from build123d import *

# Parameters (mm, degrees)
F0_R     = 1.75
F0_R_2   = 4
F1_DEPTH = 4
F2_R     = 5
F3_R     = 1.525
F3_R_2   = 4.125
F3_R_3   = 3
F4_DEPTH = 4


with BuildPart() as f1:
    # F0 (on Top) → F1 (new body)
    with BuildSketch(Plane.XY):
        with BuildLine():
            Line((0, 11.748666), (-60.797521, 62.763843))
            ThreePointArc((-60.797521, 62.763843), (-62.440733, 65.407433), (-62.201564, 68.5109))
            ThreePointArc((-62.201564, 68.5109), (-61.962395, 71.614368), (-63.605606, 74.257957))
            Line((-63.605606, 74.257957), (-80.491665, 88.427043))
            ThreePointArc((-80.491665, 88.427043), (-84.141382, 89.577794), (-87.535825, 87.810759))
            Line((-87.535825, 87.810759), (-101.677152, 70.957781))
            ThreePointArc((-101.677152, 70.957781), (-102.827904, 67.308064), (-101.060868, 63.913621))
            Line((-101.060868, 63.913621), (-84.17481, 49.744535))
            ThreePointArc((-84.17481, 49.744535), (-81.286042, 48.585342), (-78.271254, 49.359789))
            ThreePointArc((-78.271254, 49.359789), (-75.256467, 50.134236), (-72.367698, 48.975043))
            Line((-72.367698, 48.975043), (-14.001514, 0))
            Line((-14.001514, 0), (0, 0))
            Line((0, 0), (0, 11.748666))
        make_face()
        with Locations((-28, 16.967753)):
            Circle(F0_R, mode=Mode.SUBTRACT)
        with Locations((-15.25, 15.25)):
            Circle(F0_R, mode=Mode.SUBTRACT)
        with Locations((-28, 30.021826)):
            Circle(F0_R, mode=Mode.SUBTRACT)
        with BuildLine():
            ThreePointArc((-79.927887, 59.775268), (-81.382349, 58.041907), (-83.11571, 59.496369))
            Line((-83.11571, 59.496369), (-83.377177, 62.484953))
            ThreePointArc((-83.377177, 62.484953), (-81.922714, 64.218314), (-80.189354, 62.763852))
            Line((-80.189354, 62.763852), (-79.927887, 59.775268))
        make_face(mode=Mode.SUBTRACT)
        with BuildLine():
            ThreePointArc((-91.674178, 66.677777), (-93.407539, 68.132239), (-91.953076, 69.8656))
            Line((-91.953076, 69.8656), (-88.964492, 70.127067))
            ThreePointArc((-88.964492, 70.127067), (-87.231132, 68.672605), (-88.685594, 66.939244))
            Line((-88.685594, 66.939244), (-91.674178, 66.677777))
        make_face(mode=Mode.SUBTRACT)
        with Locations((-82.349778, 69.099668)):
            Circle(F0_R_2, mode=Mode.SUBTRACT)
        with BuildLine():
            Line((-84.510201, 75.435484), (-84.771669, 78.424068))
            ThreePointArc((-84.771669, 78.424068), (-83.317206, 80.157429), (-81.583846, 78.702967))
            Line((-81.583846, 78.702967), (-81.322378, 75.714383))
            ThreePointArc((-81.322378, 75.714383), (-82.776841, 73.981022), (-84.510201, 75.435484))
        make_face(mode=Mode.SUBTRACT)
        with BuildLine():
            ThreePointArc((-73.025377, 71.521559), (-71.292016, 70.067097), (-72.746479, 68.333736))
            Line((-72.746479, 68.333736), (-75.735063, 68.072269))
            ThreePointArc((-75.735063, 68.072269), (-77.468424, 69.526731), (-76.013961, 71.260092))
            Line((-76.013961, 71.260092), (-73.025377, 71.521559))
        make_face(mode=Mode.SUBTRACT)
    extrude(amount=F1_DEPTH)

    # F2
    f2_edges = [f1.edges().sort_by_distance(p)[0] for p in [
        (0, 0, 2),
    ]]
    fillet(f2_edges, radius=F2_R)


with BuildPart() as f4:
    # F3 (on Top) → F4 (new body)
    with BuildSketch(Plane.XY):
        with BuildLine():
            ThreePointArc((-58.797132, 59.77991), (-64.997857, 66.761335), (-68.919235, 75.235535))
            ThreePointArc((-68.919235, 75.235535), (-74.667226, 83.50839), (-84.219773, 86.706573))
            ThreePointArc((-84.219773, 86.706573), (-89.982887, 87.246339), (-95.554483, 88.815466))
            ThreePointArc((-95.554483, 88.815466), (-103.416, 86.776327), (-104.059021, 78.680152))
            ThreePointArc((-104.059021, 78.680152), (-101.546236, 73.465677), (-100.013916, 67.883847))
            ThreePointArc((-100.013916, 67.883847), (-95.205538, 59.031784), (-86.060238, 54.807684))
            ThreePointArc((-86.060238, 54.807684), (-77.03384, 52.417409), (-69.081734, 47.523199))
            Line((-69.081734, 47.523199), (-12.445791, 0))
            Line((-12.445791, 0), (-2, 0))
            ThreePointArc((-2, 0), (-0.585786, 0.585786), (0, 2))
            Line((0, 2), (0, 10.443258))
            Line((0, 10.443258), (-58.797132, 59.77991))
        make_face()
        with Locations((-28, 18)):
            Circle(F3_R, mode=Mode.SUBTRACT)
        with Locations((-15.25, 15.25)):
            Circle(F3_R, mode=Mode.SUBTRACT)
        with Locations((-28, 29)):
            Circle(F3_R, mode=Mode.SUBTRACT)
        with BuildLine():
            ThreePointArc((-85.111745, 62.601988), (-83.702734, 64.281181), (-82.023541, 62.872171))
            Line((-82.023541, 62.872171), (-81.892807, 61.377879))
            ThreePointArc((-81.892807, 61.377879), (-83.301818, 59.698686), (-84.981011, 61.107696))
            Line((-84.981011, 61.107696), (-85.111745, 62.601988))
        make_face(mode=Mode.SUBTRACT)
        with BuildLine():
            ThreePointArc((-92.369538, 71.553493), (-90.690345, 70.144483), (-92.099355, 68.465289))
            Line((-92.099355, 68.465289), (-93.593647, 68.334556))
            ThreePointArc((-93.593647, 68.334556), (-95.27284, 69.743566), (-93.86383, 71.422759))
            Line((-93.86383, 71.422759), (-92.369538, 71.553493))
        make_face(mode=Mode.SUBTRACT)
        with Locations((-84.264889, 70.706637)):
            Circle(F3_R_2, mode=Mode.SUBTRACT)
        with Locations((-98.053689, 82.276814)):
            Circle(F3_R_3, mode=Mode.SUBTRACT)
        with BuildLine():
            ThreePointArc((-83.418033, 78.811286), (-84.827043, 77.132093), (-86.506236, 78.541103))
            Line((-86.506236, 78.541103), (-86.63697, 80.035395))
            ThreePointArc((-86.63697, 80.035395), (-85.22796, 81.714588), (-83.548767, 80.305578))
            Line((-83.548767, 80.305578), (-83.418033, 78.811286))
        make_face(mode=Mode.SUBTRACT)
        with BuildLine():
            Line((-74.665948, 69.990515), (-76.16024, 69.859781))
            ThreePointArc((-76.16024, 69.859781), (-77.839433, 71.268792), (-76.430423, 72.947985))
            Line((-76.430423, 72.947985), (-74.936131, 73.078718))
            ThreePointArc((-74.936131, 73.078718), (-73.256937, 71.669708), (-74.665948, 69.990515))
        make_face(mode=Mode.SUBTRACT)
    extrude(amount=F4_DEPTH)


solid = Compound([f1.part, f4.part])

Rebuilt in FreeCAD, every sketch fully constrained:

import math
import FreeCAD as App
import Part
import Sketcher
from FreeCAD import Vector
Q = App.Units.Quantity


def edges_at(feature, points):
    """Names of the edges that pass closest to the given points."""
    edges = feature.Shape.Edges
    near = lambda p: min(range(len(edges)), key=lambda i: edges[i].distToShape(Part.Vertex(*p))[0])
    return sorted({f"Edge{near(p) + 1}" for p in points})

doc = App.newDocument("Part")
body = doc.addObject("PartDesign::Body", "Body")

sketch1 = doc.addObject("Sketcher::SketchObject", "Sketch")
body.addObject(sketch1)
sketch1.AttachmentSupport = (doc.XY_Plane, [""])
sketch1.MapMode = "FlatFace"
sketch1.addGeometry([
    Part.LineSegment(Vector(0, 11.7, 0), Vector(-60.8, 62.8, 0)),
    Part.ArcOfCircle(Part.Circle(Vector(-57.6, 66.6, 0), Vector(0, 0, 1), 5), math.radians(157), math.radians(230)),
    Part.ArcOfCircle(Part.Circle(Vector(-66.8, 70.4, 0), Vector(0, 0, 1), 5), math.radians(-23), math.radians(50)),
    Part.LineSegment(Vector(-63.6, 74.3, 0), Vector(-80.5, 88.4, 0)),
    Part.ArcOfCircle(Part.Circle(Vector(-83.7, 84.6, 0), Vector(0, 0, 1), 5), math.radians(50), math.radians(140)),
    Part.LineSegment(Vector(-87.5, 87.8, 0), Vector(-101.7, 71, 0)),
    Part.ArcOfCircle(Part.Circle(Vector(-97.8, 67.7, 0), Vector(0, 0, 1), 5), math.radians(140), math.radians(230)),
    Part.LineSegment(Vector(-101.1, 63.9, 0), Vector(-84.2, 49.7, 0)),
    Part.ArcOfCircle(Part.Circle(Vector(-81, 53.6, 0), Vector(0, 0, 1), 5), math.radians(-130), math.radians(-57)),
    Part.ArcOfCircle(Part.Circle(Vector(-75.6, 45.1, 0), Vector(0, 0, 1), 5), math.radians(50), math.radians(123)),
    Part.LineSegment(Vector(-72.4, 49, 0), Vector(-14, 0, 0)),
    Part.LineSegment(Vector(-14, 0, 0), Vector(0, 0, 0)),
    Part.LineSegment(Vector(0, 0, 0), Vector(0, 11.7, 0)),
    Part.Circle(Vector(-28, 17, 0), Vector(0, 0, 1), 1.8),
    Part.Circle(Vector(-15.2, 15.2, 0), Vector(0, 0, 1), 1.8),
    Part.Circle(Vector(-28, 30, 0), Vector(0, 0, 1), 1.8),
    Part.LineSegment(Vector(-80.2, 62.8, 0), Vector(-79.9, 59.8, 0)),
    Part.ArcOfCircle(Part.Circle(Vector(-81.5, 59.6, 0), Vector(0, 0, 1), 1.6), math.radians(-175), math.radians(5)),
    Part.LineSegment(Vector(-83.1, 59.5, 0), Vector(-83.4, 62.5, 0)),
    Part.ArcOfCircle(Part.Circle(Vector(-81.8, 62.6, 0), Vector(0, 0, 1), 1.6), math.radians(5), math.radians(185)),
    Part.LineSegment(Vector(-88.7, 66.9, 0), Vector(-91.7, 66.7, 0)),
    Part.ArcOfCircle(Part.Circle(Vector(-91.8, 68.3, 0), Vector(0, 0, 1), 1.6), math.radians(95), math.radians(275)),
    Part.LineSegment(Vector(-92, 69.9, 0), Vector(-89, 70.1, 0)),
    Part.ArcOfCircle(Part.Circle(Vector(-88.8, 68.5, 0), Vector(0, 0, 1), 1.6), math.radians(-85), math.radians(95)),
    Part.Circle(Vector(-82.3, 69.1, 0), Vector(0, 0, 1), 4),
    Part.LineSegment(Vector(-76, 71.3, 0), Vector(-73, 71.5, 0)),
    Part.ArcOfCircle(Part.Circle(Vector(-72.9, 69.9, 0), Vector(0, 0, 1), 1.6), math.radians(-85), math.radians(95)),
    Part.LineSegment(Vector(-72.7, 68.3, 0), Vector(-75.7, 68.1, 0)),
    Part.ArcOfCircle(Part.Circle(Vector(-75.9, 69.7, 0), Vector(0, 0, 1), 1.6), math.radians(95), math.radians(275)),
    Part.ArcOfCircle(Part.Circle(Vector(-82.9, 75.6, 0), Vector(0, 0, 1), 1.6), math.radians(-175), math.radians(5)),
    Part.LineSegment(Vector(-84.5, 75.4, 0), Vector(-84.8, 78.4, 0)),
    Part.ArcOfCircle(Part.Circle(Vector(-83.2, 78.6, 0), Vector(0, 0, 1), 1.6), math.radians(5), math.radians(185)),
    Part.LineSegment(Vector(-81.6, 78.7, 0), Vector(-81.3, 75.7, 0)),
], False)
sketch1.addConstraint([
    Sketcher.Constraint("Tangent", 0, 2, 1, 2),
    Sketcher.Constraint("Tangent", 1, 1, 2, 1),
    Sketcher.Constraint("Tangent", 2, 2, 3, 1),
    Sketcher.Constraint("Tangent", 3, 2, 4, 1),
    Sketcher.Constraint("Tangent", 4, 2, 5, 1),
    Sketcher.Constraint("Tangent", 5, 2, 6, 1),
    Sketcher.Constraint("Tangent", 6, 2, 7, 1),
    Sketcher.Constraint("Tangent", 7, 2, 8, 1),
    Sketcher.Constraint("Tangent", 8, 2, 9, 2),
    Sketcher.Constraint("Tangent", 9, 1, 10, 1),
    Sketcher.Constraint("Coincident", 10, 2, 11, 1),
    Sketcher.Constraint("Coincident", 11, 2, 12, 1),
    Sketcher.Constraint("Coincident", 12, 2, 0, 1),
    Sketcher.Constraint("Tangent", 16, 2, 17, 2),
    Sketcher.Constraint("Tangent", 17, 1, 18, 1),
    Sketcher.Constraint("Tangent", 18, 2, 19, 2),
    Sketcher.Constraint("Tangent", 19, 1, 16, 1),
    Sketcher.Constraint("Tangent", 20, 2, 21, 2),
    Sketcher.Constraint("Tangent", 21, 1, 22, 1),
    Sketcher.Constraint("Tangent", 22, 2, 23, 2),
    Sketcher.Constraint("Tangent", 23, 1, 20, 1),
    Sketcher.Constraint("Tangent", 25, 2, 26, 2),
    Sketcher.Constraint("Tangent", 26, 1, 27, 1),
    Sketcher.Constraint("Tangent", 27, 2, 28, 2),
    Sketcher.Constraint("Tangent", 28, 1, 25, 1),
    Sketcher.Constraint("Tangent", 29, 1, 30, 1),
    Sketcher.Constraint("Tangent", 30, 2, 31, 2),
    Sketcher.Constraint("Tangent", 31, 1, 32, 1),
    Sketcher.Constraint("Tangent", 32, 2, 29, 2),
    Sketcher.Constraint("Horizontal", 11),
    Sketcher.Constraint("Vertical", 12),
    Sketcher.Constraint("Coincident", 11, 2, -1, 1),
    Sketcher.Constraint("Equal", 1, 2),
    Sketcher.Constraint("Equal", 2, 4),
    Sketcher.Constraint("Equal", 4, 8),
    Sketcher.Constraint("Equal", 8, 9),
    Sketcher.Constraint("Equal", 13, 14),
    Sketcher.Constraint("Equal", 14, 15),
    Sketcher.Constraint("Equal", 17, 19),
    Sketcher.Constraint("Equal", 19, 21),
    Sketcher.Constraint("Equal", 21, 23),
    Sketcher.Constraint("Equal", 23, 26),
    Sketcher.Constraint("Equal", 26, 28),
    Sketcher.Constraint("Equal", 28, 29),
    Sketcher.Constraint("Equal", 29, 31),
    Sketcher.Constraint("Parallel", 0, 3),
    Sketcher.Constraint("Perpendicular", 3, 5),
    Sketcher.Constraint("Perpendicular", 5, 7),
    Sketcher.Constraint("Parallel", 7, 10),
    Sketcher.Constraint("Perpendicular", 18, 20),
    Sketcher.Constraint("Parallel", 22, 25),
    Sketcher.Constraint("Perpendicular", 27, 30),
    Sketcher.Constraint("Vertical", 13, 3, 15, 3),
    Sketcher.Constraint("Equal", 3, 7),
    Sketcher.Constraint("Equal", 18, 20),
    Sketcher.Constraint("Equal", 22, 25),
    Sketcher.Constraint("Equal", 27, 30),
    Sketcher.Constraint("Diameter", 24, 8.0),
    Sketcher.Constraint("Radius", 1, 5.0),
    Sketcher.Constraint("Radius", 6, 4.999998),
    Sketcher.Constraint("Diameter", 13, 3.5),
    Sketcher.Constraint("Radius", 17, 1.6),
    Sketcher.Constraint("Angle", 0, Q("140 deg")),
    Sketcher.Constraint("Angle", 16, Q("-85.000004 deg")),
    Sketcher.Constraint("Distance", 5, 22.0),
    Sketcher.Constraint("Distance", 16, 3.0),
    Sketcher.Constraint("DistanceX", 13, 3, -1, 1, 28.0),
    Sketcher.Constraint("DistanceX", 14, 3, -1, 1, 15.25),
    Sketcher.Constraint("DistanceY", -1, 1, 14, 3, 15.25),
    Sketcher.Constraint("DistanceY", 9, 3, 4, 3, 39.452),
    Sketcher.Constraint("DistanceY", 9, 3, 17, 3, 14.490999),
    Sketcher.Constraint("DistanceX", 20, 2, 18, 2, 8.297001),
    Sketcher.Constraint("DistanceY", 26, 1, 2, 3, 2.093999),
    Sketcher.Constraint("DistanceY", 22, 2, 30, 2, 8.297001),
    Sketcher.Constraint("DistanceX", 17, 3, -1, 1, 81.521799),
    Sketcher.Constraint("DistanceY", -1, 1, 1, 1, 68.5109),
    Sketcher.Constraint("DistanceX", 9, 1, -1, 1, 72.367698),
    Sketcher.Constraint("DistanceY", -1, 1, 21, 1, 69.8656),
    Sketcher.Constraint("DistanceX", 29, 1, -1, 1, 84.510201),
    Sketcher.Constraint("DistanceY", 16, 2, 24, 3, 9.3244),
    Sketcher.Constraint("DistanceX", 18, 2, 24, 3, 1.027399),
    Sketcher.Constraint("DistanceY", 24, 3, 22, 2, 1.027399),
    Sketcher.Constraint("DistanceX", 24, 3, 25, 2, 9.324401),
    Sketcher.Constraint("DistanceY", 27, 2, 24, 3, 1.027399),
    Sketcher.Constraint("DistanceY", 13, 3, 2, 3, 53.459982),
    Sketcher.Constraint("DistanceY", 15, 3, 1, 3, 36.57224),
])
pad1 = doc.addObject("PartDesign::Pad", "Pad")
body.addObject(pad1)
pad1.Profile = sketch1
pad1.Length = 4
doc.recompute()

fillet = doc.addObject("PartDesign::Fillet", "Fillet")
body.addObject(fillet)
fillet.Base = (pad1, edges_at(pad1, [(0, 0, 2)]))
fillet.Radius = 5
body2 = doc.addObject("PartDesign::Body", "Body001")

sketch2 = doc.addObject("Sketcher::SketchObject", "Sketch001")
body2.addObject(sketch2)
sketch2.AttachmentSupport = (doc.getObject("XY_Plane001"), [""])
sketch2.MapMode = "FlatFace"
sketch2.addGeometry([
    Part.ArcOfCircle(Part.Circle(Vector(-38.2, 84.3, 0), Vector(0, 0, 1), 32), math.radians(-164), math.radians(-130)),
    Part.ArcOfCircle(Part.Circle(Vector(-84.3, 70.7, 0), Vector(0, 0, 1), 16), math.radians(16), math.radians(90)),
    Part.ArcOfCircle(Part.Circle(Vector(-84.1, 118.7, 0), Vector(0, 0, 1), 32), math.radians(-111), math.radians(-90)),
    Part.ArcOfCircle(Part.Circle(Vector(-98.1, 82.3, 0), Vector(0, 0, 1), 7), math.radians(69), math.radians(211)),
    Part.ArcOfCircle(Part.Circle(Vector(-131.5, 62.2, 0), Vector(0, 0, 1), 32), math.radians(10), math.radians(31)),
    Part.ArcOfCircle(Part.Circle(Vector(-84.3, 70.7, 0), Vector(0, 0, 1), 16), math.radians(-170), math.radians(-96)),
    Part.ArcOfCircle(Part.Circle(Vector(-89.7, 23, 0), Vector(0, 0, 1), 32), math.radians(50), math.radians(84)),
    Part.LineSegment(Vector(-69.1, 47.5, 0), Vector(-12.4, 0, 0)),
    Part.LineSegment(Vector(-12.4, 0, 0), Vector(-2, 0, 0)),
    Part.ArcOfCircle(Part.Circle(Vector(-2, 2, 0), Vector(0, 0, 1), 2), math.radians(-90), math.radians(0)),
    Part.LineSegment(Vector(0, 2, 0), Vector(0, 10.4, 0)),
    Part.LineSegment(Vector(0, 10.4, 0), Vector(-58.8, 59.8, 0)),
    Part.Circle(Vector(-28, 18, 0), Vector(0, 0, 1), 1.5),
    Part.Circle(Vector(-15.2, 15.2, 0), Vector(0, 0, 1), 1.5),
    Part.Circle(Vector(-28, 29, 0), Vector(0, 0, 1), 1.5),
    Part.LineSegment(Vector(-85, 61.1, 0), Vector(-85.1, 62.6, 0)),
    Part.ArcOfCircle(Part.Circle(Vector(-83.6, 62.7, 0), Vector(0, 0, 1), 1.6), math.radians(5), math.radians(185)),
    Part.LineSegment(Vector(-82, 62.9, 0), Vector(-81.9, 61.4, 0)),
    Part.ArcOfCircle(Part.Circle(Vector(-83.4, 61.2, 0), Vector(0, 0, 1), 1.6), math.radians(-175), math.radians(5)),
    Part.LineSegment(Vector(-93.9, 71.4, 0), Vector(-92.4, 71.6, 0)),
    Part.ArcOfCircle(Part.Circle(Vector(-92.2, 70, 0), Vector(0, 0, 1), 1.6), math.radians(-85), math.radians(95)),
    Part.LineSegment(Vector(-92.1, 68.5, 0), Vector(-93.6, 68.3, 0)),
    Part.ArcOfCircle(Part.Circle(Vector(-93.7, 69.9, 0), Vector(0, 0, 1), 1.5), math.radians(95), math.radians(275)),
    Part.Circle(Vector(-84.3, 70.7, 0), Vector(0, 0, 1), 4.1),
    Part.Circle(Vector(-98.1, 82.3, 0), Vector(0, 0, 1), 3),
    Part.LineSegment(Vector(-83.5, 80.3, 0), Vector(-83.4, 78.8, 0)),
    Part.ArcOfCircle(Part.Circle(Vector(-85, 78.7, 0), Vector(0, 0, 1), 1.5), math.radians(-175), math.radians(5)),
    Part.LineSegment(Vector(-86.5, 78.5, 0), Vector(-86.6, 80, 0)),
    Part.ArcOfCircle(Part.Circle(Vector(-85.1, 80.2, 0), Vector(0, 0, 1), 1.5), math.radians(5), math.radians(185)),
    Part.ArcOfCircle(Part.Circle(Vector(-74.8, 71.5, 0), Vector(0, 0, 1), 1.5), math.radians(-85), math.radians(95)),
    Part.LineSegment(Vector(-74.7, 70, 0), Vector(-76.2, 69.9, 0)),
    Part.ArcOfCircle(Part.Circle(Vector(-76.3, 71.4, 0), Vector(0, 0, 1), 1.6), math.radians(95), math.radians(275)),
    Part.LineSegment(Vector(-76.4, 72.9, 0), Vector(-74.9, 73.1, 0)),
], False)
sketch2.addConstraint([
    Sketcher.Constraint("Tangent", 0, 1, 1, 1),
    Sketcher.Constraint("Tangent", 1, 2, 2, 2),
    Sketcher.Constraint("Tangent", 2, 1, 3, 1),
    Sketcher.Constraint("Tangent", 3, 2, 4, 2),
    Sketcher.Constraint("Tangent", 4, 1, 5, 1),
    Sketcher.Constraint("Tangent", 5, 2, 6, 2),
    Sketcher.Constraint("Tangent", 6, 1, 7, 1),
    Sketcher.Constraint("Coincident", 7, 2, 8, 1),
    Sketcher.Constraint("Tangent", 8, 2, 9, 1),
    Sketcher.Constraint("Tangent", 9, 2, 10, 1),
    Sketcher.Constraint("Coincident", 10, 2, 11, 1),
    Sketcher.Constraint("Tangent", 11, 2, 0, 2),
    Sketcher.Constraint("Tangent", 15, 2, 16, 2),
    Sketcher.Constraint("Tangent", 16, 1, 17, 1),
    Sketcher.Constraint("Tangent", 17, 2, 18, 2),
    Sketcher.Constraint("Tangent", 18, 1, 15, 1),
    Sketcher.Constraint("Tangent", 19, 2, 20, 2),
    Sketcher.Constraint("Tangent", 20, 1, 21, 1),
    Sketcher.Constraint("Tangent", 21, 2, 22, 2),
    Sketcher.Constraint("Tangent", 22, 1, 19, 1),
    Sketcher.Constraint("Tangent", 25, 2, 26, 2),
    Sketcher.Constraint("Tangent", 26, 1, 27, 1),
    Sketcher.Constraint("Tangent", 27, 2, 28, 2),
    Sketcher.Constraint("Tangent", 28, 1, 25, 1),
    Sketcher.Constraint("Tangent", 29, 1, 30, 1),
    Sketcher.Constraint("Tangent", 30, 2, 31, 2),
    Sketcher.Constraint("Tangent", 31, 1, 32, 1),
    Sketcher.Constraint("Tangent", 32, 2, 29, 2),
    Sketcher.Constraint("Horizontal", 8),
    Sketcher.Constraint("Vertical", 10),
    Sketcher.Constraint("Coincident", 5, 3, 1, 3),
    Sketcher.Constraint("Coincident", 23, 3, 1, 3),
    Sketcher.Constraint("Coincident", 24, 3, 3, 3),
    Sketcher.Constraint("Equal", 1, 5),
    Sketcher.Constraint("Equal", 12, 13),
    Sketcher.Constraint("Equal", 13, 14),
    Sketcher.Constraint("Equal", 16, 18),
    Sketcher.Constraint("Equal", 18, 20),
    Sketcher.Constraint("Equal", 20, 22),
    Sketcher.Constraint("Equal", 22, 26),
    Sketcher.Constraint("Equal", 26, 28),
    Sketcher.Constraint("Equal", 28, 29),
    Sketcher.Constraint("Equal", 29, 31),
    Sketcher.Constraint("PointOnObject", 7, 2, -1),
    Sketcher.Constraint("PointOnObject", 9, 2, -2),
    Sketcher.Constraint("Parallel", 7, 11),
    Sketcher.Constraint("Perpendicular", 17, 19),
    Sketcher.Constraint("Perpendicular", 21, 25),
    Sketcher.Constraint("Perpendicular", 27, 30),
    Sketcher.Constraint("Vertical", 12, 3, 14, 3),
    Sketcher.Constraint("Equal", 17, 19),
    Sketcher.Constraint("Equal", 21, 25),
    Sketcher.Constraint("Equal", 27, 30),
    Sketcher.Constraint("Diameter", 24, 6.0),
    Sketcher.Constraint("Radius", 0, 31.999998),
    Sketcher.Constraint("Radius", 1, 15.999998),
    Sketcher.Constraint("Radius", 3, 7.0),
    Sketcher.Constraint("Radius", 9, 1.999999),
    Sketcher.Constraint("Diameter", 12, 3.05),
    Sketcher.Constraint("Diameter", 23, 8.25),
    Sketcher.Constraint("Angle", 7, Q("-40 deg")),
    Sketcher.Constraint("Angle", 15, Q("95.000015 deg")),
    Sketcher.Constraint("Radius", 16, 1.55),
    Sketcher.Constraint("DistanceX", 12, 3, -1, 1, 28.0),
    Sketcher.Constraint("DistanceY", -1, 1, 12, 3, 18.0),
    Sketcher.Constraint("DistanceY", -1, 1, 14, 3, 29.0),
    Sketcher.Constraint("Distance", 15, 1.5),
    Sketcher.Constraint("DistanceX", 13, 3, -1, 1, 15.25),
    Sketcher.Constraint("DistanceY", -1, 1, 13, 3, 15.25),
    Sketcher.Constraint("Radius", 6, 32.000011),
    Sketcher.Constraint("Radius", 2, 32.000007),
    Sketcher.Constraint("Radius", 4, 32.000033),
    Sketcher.Constraint("DistanceX", 8, 1, 8, 2, 10.445791),
    Sketcher.Constraint("DistanceY", -1, 1, 6, 1, 47.523199),
    Sketcher.Constraint("DistanceX", 3, 3, 1, 3, 13.788802),
    Sketcher.Constraint("DistanceX", 6, 3, 16, 3, 6.0833),
    Sketcher.Constraint("DistanceY", 23, 3, 0, 1, 4.528898),
    Sketcher.Constraint("DistanceX", 6, 1, 11, 2, 10.284602),
    Sketcher.Constraint("DistanceX", 31, 3, 11, 2, 17.498199),
    Sketcher.Constraint("DistanceX", 2, 3, -1, 1, 84.129538),
    Sketcher.Constraint("DistanceY", -1, 1, 16, 3, 62.737079),
    Sketcher.Constraint("DistanceY", -1, 1, 20, 3, 70.009391),
    Sketcher.Constraint("DistanceX", 22, 3, -1, 1, 93.728739),
    Sketcher.Constraint("DistanceX", 28, 3, -1, 1, 85.092868),
    Sketcher.Constraint("DistanceY", -1, 1, 28, 1, 80.305578),
    Sketcher.Constraint("DistanceY", -1, 1, 30, 2, 69.859781),
])
pad2 = doc.addObject("PartDesign::Pad", "Pad001")
body2.addObject(pad2)
pad2.Profile = sketch2
pad2.Length = 4

doc.recompute()
